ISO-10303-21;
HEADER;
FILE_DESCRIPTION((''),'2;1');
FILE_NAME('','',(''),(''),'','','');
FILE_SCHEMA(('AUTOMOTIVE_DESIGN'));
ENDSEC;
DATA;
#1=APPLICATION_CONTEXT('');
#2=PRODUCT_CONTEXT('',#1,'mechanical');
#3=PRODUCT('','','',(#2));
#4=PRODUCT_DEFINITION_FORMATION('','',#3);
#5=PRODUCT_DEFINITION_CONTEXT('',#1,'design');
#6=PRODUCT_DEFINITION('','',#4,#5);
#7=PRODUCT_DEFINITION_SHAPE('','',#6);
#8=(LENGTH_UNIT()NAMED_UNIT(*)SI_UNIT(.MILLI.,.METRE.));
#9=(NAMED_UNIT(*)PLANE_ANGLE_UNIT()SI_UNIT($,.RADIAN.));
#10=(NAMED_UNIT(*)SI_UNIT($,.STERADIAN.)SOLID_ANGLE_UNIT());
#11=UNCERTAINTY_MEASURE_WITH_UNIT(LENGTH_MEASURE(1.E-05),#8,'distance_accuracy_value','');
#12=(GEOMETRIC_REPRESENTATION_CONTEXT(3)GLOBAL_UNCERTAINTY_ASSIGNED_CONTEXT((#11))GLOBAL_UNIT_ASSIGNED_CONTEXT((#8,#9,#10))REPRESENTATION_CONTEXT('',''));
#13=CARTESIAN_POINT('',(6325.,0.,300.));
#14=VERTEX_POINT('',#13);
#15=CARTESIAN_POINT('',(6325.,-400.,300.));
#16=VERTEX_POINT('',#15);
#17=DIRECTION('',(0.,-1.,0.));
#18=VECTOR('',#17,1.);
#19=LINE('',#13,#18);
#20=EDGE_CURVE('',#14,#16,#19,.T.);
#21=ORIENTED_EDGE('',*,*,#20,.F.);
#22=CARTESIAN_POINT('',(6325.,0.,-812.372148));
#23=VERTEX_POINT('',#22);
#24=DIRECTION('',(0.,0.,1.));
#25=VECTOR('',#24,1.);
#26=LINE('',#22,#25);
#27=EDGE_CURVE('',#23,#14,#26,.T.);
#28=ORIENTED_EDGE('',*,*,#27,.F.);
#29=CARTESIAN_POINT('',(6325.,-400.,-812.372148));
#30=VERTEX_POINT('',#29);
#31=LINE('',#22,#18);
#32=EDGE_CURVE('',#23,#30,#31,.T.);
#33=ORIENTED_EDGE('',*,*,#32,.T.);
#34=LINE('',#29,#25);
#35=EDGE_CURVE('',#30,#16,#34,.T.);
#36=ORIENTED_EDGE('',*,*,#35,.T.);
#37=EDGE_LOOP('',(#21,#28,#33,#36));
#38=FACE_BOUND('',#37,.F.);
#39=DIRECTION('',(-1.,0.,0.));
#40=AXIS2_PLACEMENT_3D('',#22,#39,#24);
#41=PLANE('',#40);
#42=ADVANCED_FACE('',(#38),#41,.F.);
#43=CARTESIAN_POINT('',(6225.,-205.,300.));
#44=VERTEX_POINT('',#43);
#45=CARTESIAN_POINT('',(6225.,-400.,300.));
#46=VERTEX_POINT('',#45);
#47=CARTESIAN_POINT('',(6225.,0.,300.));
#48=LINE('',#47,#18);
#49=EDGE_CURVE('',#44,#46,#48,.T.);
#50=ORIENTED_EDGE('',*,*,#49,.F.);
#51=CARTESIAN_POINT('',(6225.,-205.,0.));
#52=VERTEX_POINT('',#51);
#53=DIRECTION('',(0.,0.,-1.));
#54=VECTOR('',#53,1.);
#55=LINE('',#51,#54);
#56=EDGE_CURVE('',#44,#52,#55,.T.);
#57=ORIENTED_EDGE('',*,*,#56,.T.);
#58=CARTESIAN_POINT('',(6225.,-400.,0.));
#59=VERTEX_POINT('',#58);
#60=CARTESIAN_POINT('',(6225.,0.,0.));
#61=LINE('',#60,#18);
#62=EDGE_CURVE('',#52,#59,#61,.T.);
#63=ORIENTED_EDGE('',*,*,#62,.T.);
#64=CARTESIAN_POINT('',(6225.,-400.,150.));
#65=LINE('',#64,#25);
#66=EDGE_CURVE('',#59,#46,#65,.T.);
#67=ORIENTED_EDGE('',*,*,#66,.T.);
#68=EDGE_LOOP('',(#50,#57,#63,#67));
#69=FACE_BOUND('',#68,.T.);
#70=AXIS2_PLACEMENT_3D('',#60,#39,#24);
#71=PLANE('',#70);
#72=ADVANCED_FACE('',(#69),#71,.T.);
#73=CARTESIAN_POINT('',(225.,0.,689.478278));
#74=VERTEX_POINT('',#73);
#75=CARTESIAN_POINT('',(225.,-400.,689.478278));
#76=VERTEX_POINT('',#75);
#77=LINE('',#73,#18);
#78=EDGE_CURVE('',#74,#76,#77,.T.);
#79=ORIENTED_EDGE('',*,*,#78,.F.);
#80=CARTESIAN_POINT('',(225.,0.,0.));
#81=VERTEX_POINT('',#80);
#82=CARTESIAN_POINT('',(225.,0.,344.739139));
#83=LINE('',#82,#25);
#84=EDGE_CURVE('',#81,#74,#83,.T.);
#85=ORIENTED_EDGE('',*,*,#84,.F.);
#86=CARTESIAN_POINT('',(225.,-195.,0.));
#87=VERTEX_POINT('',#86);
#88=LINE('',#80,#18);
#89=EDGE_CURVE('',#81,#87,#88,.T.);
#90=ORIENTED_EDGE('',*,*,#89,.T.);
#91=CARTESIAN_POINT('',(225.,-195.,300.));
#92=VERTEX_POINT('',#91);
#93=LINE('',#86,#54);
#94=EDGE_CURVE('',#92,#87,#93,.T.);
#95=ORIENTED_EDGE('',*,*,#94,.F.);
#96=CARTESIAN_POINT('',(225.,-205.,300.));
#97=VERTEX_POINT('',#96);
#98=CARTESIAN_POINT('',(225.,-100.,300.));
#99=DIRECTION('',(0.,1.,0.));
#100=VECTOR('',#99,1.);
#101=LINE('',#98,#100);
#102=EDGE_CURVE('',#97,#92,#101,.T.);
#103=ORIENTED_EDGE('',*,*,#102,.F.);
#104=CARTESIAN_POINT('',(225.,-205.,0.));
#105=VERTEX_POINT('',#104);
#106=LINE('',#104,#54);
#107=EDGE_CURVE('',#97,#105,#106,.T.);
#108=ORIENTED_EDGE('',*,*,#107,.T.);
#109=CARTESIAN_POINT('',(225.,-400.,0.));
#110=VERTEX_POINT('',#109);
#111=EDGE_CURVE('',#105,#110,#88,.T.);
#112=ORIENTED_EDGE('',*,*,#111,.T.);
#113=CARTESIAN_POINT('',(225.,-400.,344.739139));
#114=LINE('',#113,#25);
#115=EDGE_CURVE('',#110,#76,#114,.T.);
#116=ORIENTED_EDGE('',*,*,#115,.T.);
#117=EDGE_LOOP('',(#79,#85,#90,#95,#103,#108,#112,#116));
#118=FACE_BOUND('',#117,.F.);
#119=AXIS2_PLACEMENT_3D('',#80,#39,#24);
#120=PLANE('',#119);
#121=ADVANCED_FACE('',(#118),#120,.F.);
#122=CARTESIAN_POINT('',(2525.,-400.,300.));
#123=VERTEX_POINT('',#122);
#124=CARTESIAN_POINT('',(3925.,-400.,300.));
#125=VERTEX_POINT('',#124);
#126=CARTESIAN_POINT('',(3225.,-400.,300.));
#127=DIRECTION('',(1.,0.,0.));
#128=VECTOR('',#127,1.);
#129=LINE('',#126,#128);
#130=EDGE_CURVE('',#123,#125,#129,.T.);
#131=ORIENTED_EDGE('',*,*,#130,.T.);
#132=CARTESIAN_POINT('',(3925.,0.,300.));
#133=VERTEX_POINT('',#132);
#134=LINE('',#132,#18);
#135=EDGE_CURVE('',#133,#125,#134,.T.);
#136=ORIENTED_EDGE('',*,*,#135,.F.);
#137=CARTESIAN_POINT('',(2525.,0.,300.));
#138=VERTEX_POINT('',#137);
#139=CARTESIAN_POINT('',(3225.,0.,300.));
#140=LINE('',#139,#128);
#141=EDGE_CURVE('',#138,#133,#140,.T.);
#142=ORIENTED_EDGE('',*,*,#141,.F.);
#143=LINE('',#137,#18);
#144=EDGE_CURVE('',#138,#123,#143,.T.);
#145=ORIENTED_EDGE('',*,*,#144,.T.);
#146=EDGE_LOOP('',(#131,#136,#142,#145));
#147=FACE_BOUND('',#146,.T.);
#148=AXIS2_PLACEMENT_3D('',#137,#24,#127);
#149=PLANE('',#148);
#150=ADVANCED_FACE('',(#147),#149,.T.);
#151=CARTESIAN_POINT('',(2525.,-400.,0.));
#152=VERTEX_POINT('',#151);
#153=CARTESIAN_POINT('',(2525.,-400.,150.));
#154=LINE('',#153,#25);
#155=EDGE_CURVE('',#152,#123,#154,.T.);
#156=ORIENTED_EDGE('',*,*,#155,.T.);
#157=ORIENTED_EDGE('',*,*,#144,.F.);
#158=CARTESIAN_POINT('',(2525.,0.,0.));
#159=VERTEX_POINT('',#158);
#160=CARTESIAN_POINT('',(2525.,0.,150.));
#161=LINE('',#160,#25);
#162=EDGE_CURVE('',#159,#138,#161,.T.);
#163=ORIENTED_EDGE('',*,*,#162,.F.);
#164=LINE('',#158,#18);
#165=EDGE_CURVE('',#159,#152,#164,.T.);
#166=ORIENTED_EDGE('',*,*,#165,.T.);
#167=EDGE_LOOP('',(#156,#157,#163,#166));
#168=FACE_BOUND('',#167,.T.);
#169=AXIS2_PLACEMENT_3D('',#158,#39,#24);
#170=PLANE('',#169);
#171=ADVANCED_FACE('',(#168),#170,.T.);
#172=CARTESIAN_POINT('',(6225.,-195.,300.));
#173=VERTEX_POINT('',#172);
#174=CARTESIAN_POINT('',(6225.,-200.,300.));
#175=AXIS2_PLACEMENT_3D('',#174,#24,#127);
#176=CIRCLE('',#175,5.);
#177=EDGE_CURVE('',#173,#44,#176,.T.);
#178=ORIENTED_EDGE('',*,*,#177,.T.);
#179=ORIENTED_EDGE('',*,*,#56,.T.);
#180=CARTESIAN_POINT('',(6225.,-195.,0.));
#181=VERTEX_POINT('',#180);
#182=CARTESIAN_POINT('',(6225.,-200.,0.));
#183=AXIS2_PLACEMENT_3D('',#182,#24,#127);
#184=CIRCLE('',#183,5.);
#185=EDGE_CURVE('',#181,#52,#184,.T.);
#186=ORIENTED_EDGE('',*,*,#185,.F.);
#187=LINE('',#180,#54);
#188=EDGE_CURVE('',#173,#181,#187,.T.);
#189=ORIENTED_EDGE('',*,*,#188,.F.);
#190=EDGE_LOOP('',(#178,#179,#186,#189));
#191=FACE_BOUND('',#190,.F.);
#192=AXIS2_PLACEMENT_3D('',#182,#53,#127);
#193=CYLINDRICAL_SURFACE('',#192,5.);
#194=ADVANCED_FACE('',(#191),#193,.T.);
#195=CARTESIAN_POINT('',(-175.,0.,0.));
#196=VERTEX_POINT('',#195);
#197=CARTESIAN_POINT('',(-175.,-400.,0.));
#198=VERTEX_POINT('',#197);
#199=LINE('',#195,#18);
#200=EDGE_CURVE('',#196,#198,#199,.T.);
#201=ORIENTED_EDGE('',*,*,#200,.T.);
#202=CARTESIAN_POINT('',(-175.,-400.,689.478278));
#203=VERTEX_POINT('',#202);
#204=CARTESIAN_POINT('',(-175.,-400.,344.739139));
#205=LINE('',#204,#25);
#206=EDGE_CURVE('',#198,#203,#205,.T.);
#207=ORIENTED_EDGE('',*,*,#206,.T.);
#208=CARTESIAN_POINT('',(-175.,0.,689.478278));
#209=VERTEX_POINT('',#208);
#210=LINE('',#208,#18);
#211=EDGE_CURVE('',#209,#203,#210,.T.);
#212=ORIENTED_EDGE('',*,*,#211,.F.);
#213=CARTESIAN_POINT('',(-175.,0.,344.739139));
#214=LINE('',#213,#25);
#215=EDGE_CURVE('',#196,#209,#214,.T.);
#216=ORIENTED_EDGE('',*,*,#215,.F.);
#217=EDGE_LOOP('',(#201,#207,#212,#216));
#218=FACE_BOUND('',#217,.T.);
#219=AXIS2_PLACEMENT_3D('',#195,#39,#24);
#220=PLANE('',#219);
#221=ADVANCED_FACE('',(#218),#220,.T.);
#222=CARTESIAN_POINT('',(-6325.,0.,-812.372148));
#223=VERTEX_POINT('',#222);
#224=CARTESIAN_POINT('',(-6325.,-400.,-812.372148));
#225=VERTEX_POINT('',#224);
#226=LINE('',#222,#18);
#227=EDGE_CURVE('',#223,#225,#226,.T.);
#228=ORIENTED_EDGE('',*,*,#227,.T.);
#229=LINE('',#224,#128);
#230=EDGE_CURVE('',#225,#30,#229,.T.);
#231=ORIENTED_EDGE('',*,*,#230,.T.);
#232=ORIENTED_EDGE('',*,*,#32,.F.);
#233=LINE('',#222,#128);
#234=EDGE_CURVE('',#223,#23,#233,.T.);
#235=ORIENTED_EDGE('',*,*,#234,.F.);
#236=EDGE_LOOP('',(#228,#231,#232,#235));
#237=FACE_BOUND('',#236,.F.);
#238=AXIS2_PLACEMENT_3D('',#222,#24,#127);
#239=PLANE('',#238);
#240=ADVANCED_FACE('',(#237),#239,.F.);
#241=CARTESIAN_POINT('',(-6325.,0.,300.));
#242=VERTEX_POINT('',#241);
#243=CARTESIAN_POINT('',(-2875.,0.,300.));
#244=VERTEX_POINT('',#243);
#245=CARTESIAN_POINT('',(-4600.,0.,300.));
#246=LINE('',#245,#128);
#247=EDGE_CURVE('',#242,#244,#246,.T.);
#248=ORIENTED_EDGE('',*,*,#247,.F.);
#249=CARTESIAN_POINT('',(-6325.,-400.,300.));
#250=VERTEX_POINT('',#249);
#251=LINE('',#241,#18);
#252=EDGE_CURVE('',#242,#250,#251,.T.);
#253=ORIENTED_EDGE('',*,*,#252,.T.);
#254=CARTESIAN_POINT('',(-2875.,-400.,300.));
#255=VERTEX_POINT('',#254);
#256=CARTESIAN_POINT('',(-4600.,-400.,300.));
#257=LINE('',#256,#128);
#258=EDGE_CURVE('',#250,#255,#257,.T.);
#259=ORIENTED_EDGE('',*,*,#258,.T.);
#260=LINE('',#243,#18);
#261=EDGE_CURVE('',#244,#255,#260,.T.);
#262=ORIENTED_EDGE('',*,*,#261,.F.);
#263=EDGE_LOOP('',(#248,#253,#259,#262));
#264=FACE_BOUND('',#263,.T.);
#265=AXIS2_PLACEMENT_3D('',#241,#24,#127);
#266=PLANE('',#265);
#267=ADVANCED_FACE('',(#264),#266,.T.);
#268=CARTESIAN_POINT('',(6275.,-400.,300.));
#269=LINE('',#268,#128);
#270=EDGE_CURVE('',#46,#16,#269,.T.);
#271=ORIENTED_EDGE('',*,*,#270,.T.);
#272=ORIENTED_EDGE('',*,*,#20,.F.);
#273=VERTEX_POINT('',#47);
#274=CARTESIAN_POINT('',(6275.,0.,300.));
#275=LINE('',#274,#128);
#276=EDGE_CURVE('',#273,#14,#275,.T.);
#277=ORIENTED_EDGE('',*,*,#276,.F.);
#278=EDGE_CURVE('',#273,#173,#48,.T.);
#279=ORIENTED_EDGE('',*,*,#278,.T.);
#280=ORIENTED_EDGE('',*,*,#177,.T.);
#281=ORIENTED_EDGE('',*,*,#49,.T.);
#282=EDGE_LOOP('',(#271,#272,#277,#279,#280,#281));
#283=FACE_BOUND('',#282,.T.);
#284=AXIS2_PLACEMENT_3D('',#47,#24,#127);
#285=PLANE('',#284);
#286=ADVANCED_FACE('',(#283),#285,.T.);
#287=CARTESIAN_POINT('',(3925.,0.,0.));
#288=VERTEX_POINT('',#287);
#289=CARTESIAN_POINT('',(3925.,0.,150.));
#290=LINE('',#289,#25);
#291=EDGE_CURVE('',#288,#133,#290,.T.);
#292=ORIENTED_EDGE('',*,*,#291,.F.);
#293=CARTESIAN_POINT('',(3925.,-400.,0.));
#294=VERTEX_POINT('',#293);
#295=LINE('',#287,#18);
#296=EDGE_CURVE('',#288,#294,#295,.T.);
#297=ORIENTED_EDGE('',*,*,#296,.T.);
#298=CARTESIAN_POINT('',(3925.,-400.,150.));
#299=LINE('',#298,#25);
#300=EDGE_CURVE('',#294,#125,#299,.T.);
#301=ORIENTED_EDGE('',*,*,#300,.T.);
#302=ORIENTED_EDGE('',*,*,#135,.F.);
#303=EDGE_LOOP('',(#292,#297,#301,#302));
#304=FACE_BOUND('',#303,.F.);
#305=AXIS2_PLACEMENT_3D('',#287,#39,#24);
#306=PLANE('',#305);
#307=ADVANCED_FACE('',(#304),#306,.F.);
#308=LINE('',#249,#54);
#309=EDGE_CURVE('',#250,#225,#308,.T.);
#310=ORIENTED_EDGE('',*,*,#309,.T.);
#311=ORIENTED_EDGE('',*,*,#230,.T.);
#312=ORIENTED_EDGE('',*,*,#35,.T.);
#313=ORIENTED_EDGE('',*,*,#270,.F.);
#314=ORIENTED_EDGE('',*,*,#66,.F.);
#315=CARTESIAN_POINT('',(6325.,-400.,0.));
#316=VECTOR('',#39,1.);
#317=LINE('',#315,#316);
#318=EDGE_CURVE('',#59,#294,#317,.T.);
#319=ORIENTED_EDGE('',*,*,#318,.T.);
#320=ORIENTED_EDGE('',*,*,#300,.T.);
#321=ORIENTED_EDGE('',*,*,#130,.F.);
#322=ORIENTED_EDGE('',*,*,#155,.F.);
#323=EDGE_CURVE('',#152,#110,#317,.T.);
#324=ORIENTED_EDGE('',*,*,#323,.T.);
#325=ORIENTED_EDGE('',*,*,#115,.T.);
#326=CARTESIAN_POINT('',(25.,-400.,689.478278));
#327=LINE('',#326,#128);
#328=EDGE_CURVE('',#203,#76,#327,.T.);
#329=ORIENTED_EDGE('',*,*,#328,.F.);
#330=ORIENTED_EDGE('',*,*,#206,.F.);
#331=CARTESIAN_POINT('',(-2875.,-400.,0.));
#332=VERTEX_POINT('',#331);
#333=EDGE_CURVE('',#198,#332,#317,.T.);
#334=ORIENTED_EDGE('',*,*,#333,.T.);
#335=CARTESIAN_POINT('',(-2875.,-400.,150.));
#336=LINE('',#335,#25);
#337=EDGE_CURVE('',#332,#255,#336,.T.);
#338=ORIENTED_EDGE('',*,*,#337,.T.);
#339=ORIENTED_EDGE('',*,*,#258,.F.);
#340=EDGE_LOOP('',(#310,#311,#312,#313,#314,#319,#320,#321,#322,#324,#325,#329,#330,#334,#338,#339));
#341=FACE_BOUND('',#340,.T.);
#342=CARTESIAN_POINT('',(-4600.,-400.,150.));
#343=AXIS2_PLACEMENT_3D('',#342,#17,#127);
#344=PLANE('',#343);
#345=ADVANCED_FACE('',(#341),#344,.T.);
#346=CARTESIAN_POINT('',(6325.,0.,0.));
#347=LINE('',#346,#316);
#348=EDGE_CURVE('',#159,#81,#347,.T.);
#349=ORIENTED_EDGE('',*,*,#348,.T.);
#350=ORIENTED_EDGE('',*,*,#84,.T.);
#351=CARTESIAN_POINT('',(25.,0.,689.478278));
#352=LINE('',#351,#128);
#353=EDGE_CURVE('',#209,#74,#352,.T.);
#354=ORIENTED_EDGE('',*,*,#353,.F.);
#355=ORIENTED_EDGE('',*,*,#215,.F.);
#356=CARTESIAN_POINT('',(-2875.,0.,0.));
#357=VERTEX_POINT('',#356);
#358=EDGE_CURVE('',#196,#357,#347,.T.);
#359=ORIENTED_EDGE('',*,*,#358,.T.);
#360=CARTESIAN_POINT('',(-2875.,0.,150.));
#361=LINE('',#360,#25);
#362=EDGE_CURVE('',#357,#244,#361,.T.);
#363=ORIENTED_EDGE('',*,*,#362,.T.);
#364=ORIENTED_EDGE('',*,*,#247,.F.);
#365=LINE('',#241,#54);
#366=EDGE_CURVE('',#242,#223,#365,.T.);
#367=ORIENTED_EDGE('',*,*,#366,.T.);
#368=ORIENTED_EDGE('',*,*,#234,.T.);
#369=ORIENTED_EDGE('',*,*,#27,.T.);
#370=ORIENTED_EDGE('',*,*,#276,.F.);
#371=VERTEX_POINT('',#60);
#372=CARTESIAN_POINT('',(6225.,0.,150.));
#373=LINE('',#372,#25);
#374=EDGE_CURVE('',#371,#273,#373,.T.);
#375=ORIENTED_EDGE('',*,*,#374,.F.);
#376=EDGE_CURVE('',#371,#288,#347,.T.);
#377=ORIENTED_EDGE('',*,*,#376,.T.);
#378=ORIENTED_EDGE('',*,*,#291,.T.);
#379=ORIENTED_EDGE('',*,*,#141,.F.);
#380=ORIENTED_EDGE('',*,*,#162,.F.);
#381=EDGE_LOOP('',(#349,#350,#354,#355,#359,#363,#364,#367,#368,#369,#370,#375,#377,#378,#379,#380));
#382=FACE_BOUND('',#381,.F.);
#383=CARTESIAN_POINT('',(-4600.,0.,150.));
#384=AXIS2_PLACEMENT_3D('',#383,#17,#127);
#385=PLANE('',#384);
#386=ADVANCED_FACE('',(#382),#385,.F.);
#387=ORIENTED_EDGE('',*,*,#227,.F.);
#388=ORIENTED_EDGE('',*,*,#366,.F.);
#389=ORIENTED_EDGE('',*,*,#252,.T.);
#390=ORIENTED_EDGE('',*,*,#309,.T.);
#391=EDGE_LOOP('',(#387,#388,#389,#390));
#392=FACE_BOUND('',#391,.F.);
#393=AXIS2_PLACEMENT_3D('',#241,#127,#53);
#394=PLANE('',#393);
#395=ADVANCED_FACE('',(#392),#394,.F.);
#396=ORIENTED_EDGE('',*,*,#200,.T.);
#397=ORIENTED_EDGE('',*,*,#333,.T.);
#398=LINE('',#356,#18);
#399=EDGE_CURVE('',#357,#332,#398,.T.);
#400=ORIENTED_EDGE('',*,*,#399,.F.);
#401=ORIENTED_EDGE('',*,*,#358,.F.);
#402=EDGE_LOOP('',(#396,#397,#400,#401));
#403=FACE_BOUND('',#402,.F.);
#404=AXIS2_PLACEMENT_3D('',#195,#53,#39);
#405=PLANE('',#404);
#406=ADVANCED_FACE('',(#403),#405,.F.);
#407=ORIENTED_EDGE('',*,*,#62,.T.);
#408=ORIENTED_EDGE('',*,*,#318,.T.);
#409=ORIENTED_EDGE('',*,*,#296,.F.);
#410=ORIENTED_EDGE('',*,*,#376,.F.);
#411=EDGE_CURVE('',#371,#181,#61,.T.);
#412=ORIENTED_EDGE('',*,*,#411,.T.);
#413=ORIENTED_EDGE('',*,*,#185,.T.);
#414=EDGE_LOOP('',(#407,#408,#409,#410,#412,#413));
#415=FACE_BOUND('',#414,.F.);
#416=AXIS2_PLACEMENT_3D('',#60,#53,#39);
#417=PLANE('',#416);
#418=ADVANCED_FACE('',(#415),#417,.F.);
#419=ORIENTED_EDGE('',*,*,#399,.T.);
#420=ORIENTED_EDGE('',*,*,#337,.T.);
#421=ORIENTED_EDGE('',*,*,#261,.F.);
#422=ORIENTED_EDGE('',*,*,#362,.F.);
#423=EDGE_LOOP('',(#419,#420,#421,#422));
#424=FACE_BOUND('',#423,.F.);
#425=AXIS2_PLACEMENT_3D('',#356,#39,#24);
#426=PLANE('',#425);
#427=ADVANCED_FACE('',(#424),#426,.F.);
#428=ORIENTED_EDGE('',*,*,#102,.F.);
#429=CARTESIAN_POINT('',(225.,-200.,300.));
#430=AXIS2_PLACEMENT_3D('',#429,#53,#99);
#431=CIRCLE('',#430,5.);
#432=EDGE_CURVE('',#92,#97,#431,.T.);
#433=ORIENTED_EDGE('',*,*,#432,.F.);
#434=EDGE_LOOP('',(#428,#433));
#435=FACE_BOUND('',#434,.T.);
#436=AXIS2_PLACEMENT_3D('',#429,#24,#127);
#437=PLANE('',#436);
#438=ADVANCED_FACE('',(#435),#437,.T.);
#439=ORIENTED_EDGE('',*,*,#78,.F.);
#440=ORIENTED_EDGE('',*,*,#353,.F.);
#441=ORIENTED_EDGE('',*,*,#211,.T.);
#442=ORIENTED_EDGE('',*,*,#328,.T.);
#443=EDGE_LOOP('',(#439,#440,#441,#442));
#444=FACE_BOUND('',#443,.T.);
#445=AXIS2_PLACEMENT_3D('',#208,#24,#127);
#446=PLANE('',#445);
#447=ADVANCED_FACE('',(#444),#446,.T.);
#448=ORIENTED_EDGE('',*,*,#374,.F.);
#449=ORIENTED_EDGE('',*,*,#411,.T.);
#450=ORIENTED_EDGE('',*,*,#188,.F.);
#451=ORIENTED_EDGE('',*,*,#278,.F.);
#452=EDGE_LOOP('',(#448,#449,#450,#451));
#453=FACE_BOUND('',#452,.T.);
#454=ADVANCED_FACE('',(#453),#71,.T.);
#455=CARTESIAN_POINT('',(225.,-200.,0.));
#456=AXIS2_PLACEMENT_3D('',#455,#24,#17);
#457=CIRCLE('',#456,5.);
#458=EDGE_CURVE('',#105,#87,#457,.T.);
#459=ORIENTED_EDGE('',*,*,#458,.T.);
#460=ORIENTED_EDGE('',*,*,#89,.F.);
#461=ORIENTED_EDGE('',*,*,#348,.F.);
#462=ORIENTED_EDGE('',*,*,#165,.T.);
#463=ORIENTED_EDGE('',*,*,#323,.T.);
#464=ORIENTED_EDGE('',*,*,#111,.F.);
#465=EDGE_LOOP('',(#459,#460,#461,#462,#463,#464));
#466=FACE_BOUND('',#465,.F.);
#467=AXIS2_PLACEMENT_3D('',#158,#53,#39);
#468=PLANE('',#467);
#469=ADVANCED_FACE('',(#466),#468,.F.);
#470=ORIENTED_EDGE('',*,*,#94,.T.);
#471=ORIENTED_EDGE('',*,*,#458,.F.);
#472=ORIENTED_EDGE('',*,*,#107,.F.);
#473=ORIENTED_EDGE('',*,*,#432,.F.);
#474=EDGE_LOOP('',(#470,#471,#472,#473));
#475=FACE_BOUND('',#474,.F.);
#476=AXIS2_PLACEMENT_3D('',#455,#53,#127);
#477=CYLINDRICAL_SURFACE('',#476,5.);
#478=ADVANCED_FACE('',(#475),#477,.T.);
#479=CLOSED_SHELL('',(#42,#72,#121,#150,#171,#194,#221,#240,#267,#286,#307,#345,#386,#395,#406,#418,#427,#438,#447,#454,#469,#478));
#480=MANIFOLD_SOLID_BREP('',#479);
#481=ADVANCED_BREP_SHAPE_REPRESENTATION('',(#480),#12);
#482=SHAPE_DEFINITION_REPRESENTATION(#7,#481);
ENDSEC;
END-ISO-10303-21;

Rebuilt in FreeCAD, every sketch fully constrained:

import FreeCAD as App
import Part
import Sketcher

V = App.Vector

doc = App.newDocument("Part")
body = doc.addObject("PartDesign::Body", "Body")

# Sketch on XZ plane
sketch1 = body.newObject("Sketcher::SketchObject", "Sketch")
sketch1.AttachmentSupport = (doc.getObject("XZ_Plane"), [""])
sketch1.MapMode = "FlatFace"
sketch1.addGeometry([
    Part.LineSegment(V(-6325, 300, 0), V(-6325, -812, 0)),  # 0
    Part.LineSegment(V(-6325, -812, 0), V(6325, -812, 0)),  # 1
    Part.LineSegment(V(6325, -812, 0), V(6325, 300, 0)),  # 2
    Part.LineSegment(V(6325, 300, 0), V(6225, 300, 0)),  # 3
    Part.LineSegment(V(6225, 300, 0), V(6225, 0, 0)),  # 4
    Part.LineSegment(V(6225, 0, 0), V(3925, 0, 0)),  # 5
    Part.LineSegment(V(3925, 0, 0), V(3925, 300, 0)),  # 6
    Part.LineSegment(V(3925, 300, 0), V(2525, 300, 0)),  # 7
    Part.LineSegment(V(2525, 300, 0), V(2525, 0, 0)),  # 8
    Part.LineSegment(V(2525, 0, 0), V(225, 0, 0)),  # 9
    Part.LineSegment(V(225, 0, 0), V(225, 689, 0)),  # 10
    Part.LineSegment(V(225, 689, 0), V(-175, 689, 0)),  # 11
    Part.LineSegment(V(-175, 689, 0), V(-175, 0, 0)),  # 12
    Part.LineSegment(V(-175, 0, 0), V(-2875, 0, 0)),  # 13
    Part.LineSegment(V(-2875, 0, 0), V(-2875, 300, 0)),  # 14
    Part.LineSegment(V(-2875, 300, 0), V(-6325, 300, 0)),  # 15
], False)
sketch1.addConstraint([
    Sketcher.Constraint("Coincident", 0, 2, 1, 1),
    Sketcher.Constraint("Coincident", 1, 2, 2, 1),
    Sketcher.Constraint("Coincident", 2, 2, 3, 1),
    Sketcher.Constraint("Coincident", 3, 2, 4, 1),
    Sketcher.Constraint("Coincident", 4, 2, 5, 1),
    Sketcher.Constraint("Coincident", 5, 2, 6, 1),
    Sketcher.Constraint("Coincident", 6, 2, 7, 1),
    Sketcher.Constraint("Coincident", 7, 2, 8, 1),
    Sketcher.Constraint("Coincident", 8, 2, 9, 1),
    Sketcher.Constraint("Coincident", 9, 2, 10, 1),
    Sketcher.Constraint("Coincident", 10, 2, 11, 1),
    Sketcher.Constraint("Coincident", 11, 2, 12, 1),
    Sketcher.Constraint("Coincident", 12, 2, 13, 1),
    Sketcher.Constraint("Coincident", 13, 2, 14, 1),
    Sketcher.Constraint("Coincident", 14, 2, 15, 1),
    Sketcher.Constraint("Coincident", 15, 2, 0, 1),
    Sketcher.Constraint("Vertical", 0),
    Sketcher.Constraint("Horizontal", 1),
    Sketcher.Constraint("Vertical", 2),
    Sketcher.Constraint("Horizontal", 3),
    Sketcher.Constraint("Vertical", 4),
    Sketcher.Constraint("Horizontal", 5),
    Sketcher.Constraint("Vertical", 6),
    Sketcher.Constraint("Horizontal", 7),
    Sketcher.Constraint("Vertical", 8),
    Sketcher.Constraint("Horizontal", 9),
    Sketcher.Constraint("Vertical", 10),
    Sketcher.Constraint("Horizontal", 11),
    Sketcher.Constraint("Vertical", 12),
    Sketcher.Constraint("Horizontal", 13),
    Sketcher.Constraint("Vertical", 14),
    Sketcher.Constraint("Horizontal", 15),
    Sketcher.Constraint("Symmetric", 2, 2, 15, 2, -2),
    Sketcher.Constraint("PointOnObject", 4, 2, -1),
    Sketcher.Constraint("PointOnObject", 8, 2, -1),
    Sketcher.Constraint("PointOnObject", 12, 2, -1),
    Sketcher.Constraint("Horizontal", 3, 2, 6, 2),
    Sketcher.Constraint("Equal", 5, 9),
    Sketcher.Constraint("DistanceX", 1, 1, 1, 2, 12650.0),
    Sketcher.Constraint("DistanceX", 3, 2, 3, 1, 100.0),
    Sketcher.Constraint("DistanceX", 5, 2, 5, 1, 2300.0),
    Sketcher.Constraint("DistanceX", 7, 2, 7, 1, 1400.0),
    Sketcher.Constraint("DistanceX", 11, 2, 11, 1, 400.0),
    Sketcher.Constraint("DistanceX", 13, 2, 13, 1, 2700.0),
    Sketcher.Constraint("DistanceY", 4, 2, 4, 1, 300.0),
    Sketcher.Constraint("DistanceY", 0, 2, 0, 1, 1112.372148),
    Sketcher.Constraint("DistanceY", 10, 1, 10, 2, 689.478278),
])
pad1 = body.newObject("PartDesign::Pad", "Pad")
pad1.Profile = sketch1
pad1.Length = 400

# Sketch on XY plane
sketch2 = body.newObject("Sketcher::SketchObject", "Sketch001")
sketch2.AttachmentSupport = (doc.getObject("XY_Plane"), [""])
sketch2.MapMode = "FlatFace"
sketch2.addGeometry([
    Part.Circle(V(225, -200, 0), V(0, 0, 1), 5),
    Part.Circle(V(6225, -200, 0), V(0, 0, 1), 5),
], False)
sketch2.addConstraint([
    Sketcher.Constraint("Equal", 0, 1),
    Sketcher.Constraint("Horizontal", 0, 3, 1, 3),
    Sketcher.Constraint("Diameter", 0, 10.0),
    Sketcher.Constraint("DistanceX", -1, 1, 0, 3, 225.0),
    Sketcher.Constraint("DistanceY", 0, 3, -1, 1, 200.0),
    Sketcher.Constraint("DistanceX", -1, 1, 1, 3, 6225.0),
])
pad2 = body.newObject("PartDesign::Pad", "Pad001")
pad2.Profile = sketch2
pad2.Length = 300

doc.recompute()
